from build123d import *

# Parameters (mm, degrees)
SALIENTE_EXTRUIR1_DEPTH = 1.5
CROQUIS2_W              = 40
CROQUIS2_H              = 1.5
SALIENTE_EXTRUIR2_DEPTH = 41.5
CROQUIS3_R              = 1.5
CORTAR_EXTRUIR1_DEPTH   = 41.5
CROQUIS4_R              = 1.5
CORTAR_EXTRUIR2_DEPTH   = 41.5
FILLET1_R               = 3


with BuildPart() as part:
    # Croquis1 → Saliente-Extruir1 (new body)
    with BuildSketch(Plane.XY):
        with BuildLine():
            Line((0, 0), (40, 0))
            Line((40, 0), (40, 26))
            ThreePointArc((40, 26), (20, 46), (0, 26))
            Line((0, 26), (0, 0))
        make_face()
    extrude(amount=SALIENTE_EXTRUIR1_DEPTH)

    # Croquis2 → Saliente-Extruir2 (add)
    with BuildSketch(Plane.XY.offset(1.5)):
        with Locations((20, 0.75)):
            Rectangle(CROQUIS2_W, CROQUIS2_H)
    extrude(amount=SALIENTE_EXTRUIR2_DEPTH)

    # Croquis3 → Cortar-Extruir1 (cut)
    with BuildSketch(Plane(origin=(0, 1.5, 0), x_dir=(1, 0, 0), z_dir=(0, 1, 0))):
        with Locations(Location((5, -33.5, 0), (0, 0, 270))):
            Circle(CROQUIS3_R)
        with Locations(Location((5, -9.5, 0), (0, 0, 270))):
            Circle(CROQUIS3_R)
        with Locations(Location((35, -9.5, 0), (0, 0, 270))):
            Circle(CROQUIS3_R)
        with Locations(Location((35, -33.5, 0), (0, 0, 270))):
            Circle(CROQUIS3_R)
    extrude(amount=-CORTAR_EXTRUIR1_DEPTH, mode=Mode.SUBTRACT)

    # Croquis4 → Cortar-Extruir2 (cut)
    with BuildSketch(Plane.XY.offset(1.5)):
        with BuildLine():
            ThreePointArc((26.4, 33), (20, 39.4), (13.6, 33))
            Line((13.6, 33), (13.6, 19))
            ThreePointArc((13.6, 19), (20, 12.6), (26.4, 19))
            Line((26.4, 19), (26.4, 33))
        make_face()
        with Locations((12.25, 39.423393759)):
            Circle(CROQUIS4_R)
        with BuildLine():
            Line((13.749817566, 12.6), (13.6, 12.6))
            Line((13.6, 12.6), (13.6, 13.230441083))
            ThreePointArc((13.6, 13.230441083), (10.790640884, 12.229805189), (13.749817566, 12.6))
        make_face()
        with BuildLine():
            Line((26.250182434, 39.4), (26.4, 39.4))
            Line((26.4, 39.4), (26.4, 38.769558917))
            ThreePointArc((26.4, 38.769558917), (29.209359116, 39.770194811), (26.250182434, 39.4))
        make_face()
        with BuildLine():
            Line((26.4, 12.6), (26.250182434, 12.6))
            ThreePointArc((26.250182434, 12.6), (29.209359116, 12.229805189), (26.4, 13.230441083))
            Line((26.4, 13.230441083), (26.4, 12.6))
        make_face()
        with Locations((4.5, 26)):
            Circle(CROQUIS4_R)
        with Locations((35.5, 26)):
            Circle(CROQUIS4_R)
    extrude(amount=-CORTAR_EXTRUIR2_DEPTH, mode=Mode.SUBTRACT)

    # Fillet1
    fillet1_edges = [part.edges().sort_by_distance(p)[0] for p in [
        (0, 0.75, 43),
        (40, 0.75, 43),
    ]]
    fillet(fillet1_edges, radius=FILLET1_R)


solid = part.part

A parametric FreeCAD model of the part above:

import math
import FreeCAD as App
import Part
import Sketcher

V = App.Vector


def edges_at(feature, points):
    """Names of the edges that pass closest to the given points."""
    edges = feature.Shape.Edges
    near = lambda p: min(range(len(edges)), key=lambda i: edges[i].distToShape(Part.Vertex(*p))[0])
    return sorted({f"Edge{near(p) + 1}" for p in points})


def add_polygon(sketch, points):
    """Adds a closed chain of lines whose ends are joined by coincident constraints."""
    first, n = sketch.GeometryCount, len(points)
    for a, b in zip(points, points[1:] + points[:1]):
        sketch.addGeometry(Part.LineSegment(App.Vector(*a, 0), App.Vector(*b, 0)), False)
    for i in range(n):
        sketch.addConstraint(Sketcher.Constraint("Coincident", first + i, 2, first + (i + 1) % n, 1))

doc = App.newDocument("Part")
body = doc.addObject("PartDesign::Body", "Body")

# Sketch on XY plane
sketch1 = body.newObject("Sketcher::SketchObject", "Sketch")
sketch1.AttachmentSupport = (doc.getObject("XY_Plane"), [""])
sketch1.MapMode = "FlatFace"
sketch1.addGeometry(Part.LineSegment(V(0, 0, 0), V(40, 0, 0)), False)
sketch1.addGeometry(Part.LineSegment(V(40, 0, 0), V(40, 26, 0)), False)
sketch1.addGeometry(Part.ArcOfCircle(Part.Circle(V(20, 26, 0), V(0, 0, 1), 20), math.radians(0), math.radians(180)), False)
sketch1.addGeometry(Part.LineSegment(V(0, 26, 0), V(0, 0, 0)), False)
sketch1.addConstraint(Sketcher.Constraint("Coincident", 0, 2, 1, 1))
sketch1.addConstraint(Sketcher.Constraint("Tangent", 1, 2, 2, 1))
sketch1.addConstraint(Sketcher.Constraint("Tangent", 2, 2, 3, 1))
sketch1.addConstraint(Sketcher.Constraint("Coincident", 3, 2, 0, 1))
sketch1.addConstraint(Sketcher.Constraint("Horizontal", 0))
sketch1.addConstraint(Sketcher.Constraint("Vertical", 1))
sketch1.addConstraint(Sketcher.Constraint("Vertical", 3))
sketch1.addConstraint(Sketcher.Constraint("Coincident", 3, 2, -1, 1))
sketch1.addConstraint(Sketcher.Constraint("Radius", 2, 20.0))
sketch1.addConstraint(Sketcher.Constraint("DistanceY", 1, 1, 1, 2, 26.0))
pad1 = body.newObject("PartDesign::Pad", "Pad")
pad1.Profile = sketch1
pad1.Length = 1.5

# Sketch on XY plane
sketch2 = body.newObject("Sketcher::SketchObject", "Sketch001")
sketch2.AttachmentSupport = (doc.getObject("XY_Plane"), [""])
sketch2.MapMode = "FlatFace"
sketch2.AttachmentOffset = App.Placement(V(0, 0, 1.5), App.Rotation())
add_polygon(sketch2, [(0, 1.5), (0, 0), (40, 0), (40, 1.5)])  # lines 0-3
sketch2.addConstraint(Sketcher.Constraint("Vertical", 0))
sketch2.addConstraint(Sketcher.Constraint("Horizontal", 1))
sketch2.addConstraint(Sketcher.Constraint("Vertical", 2))
sketch2.addConstraint(Sketcher.Constraint("Horizontal", 3))
sketch2.addConstraint(Sketcher.Constraint("Coincident", 0, 2, -1, 1))
sketch2.addConstraint(Sketcher.Constraint("DistanceX", 1, 1, 1, 2, 40.0))
sketch2.addConstraint(Sketcher.Constraint("DistanceY", 0, 2, 0, 1, 1.5))
pad2 = body.newObject("PartDesign::Pad", "Pad001")
pad2.Profile = sketch2
pad2.Length = 41.5

# Sketch on XZ plane
sketch3 = body.newObject("Sketcher::SketchObject", "Sketch002")
sketch3.AttachmentSupport = (doc.getObject("XZ_Plane"), [""])
sketch3.MapMode = "FlatFace"
sketch3.AttachmentOffset = App.Placement(V(0, 0, -1.5), App.Rotation())
sketch3.addGeometry(Part.Circle(V(5, 33.5, 0), V(0, 0, 1), 1.5), False)
sketch3.addGeometry(Part.Circle(V(5, 9.5, 0), V(0, 0, 1), 1.5), False)
sketch3.addGeometry(Part.Circle(V(35, 9.5, 0), V(0, 0, 1), 1.5), False)
sketch3.addGeometry(Part.Circle(V(35, 33.5, 0), V(0, 0, 1), 1.5), False)
sketch3.addConstraint(Sketcher.Constraint("Equal", 0, 1))
sketch3.addConstraint(Sketcher.Constraint("Equal", 1, 2))
sketch3.addConstraint(Sketcher.Constraint("Equal", 2, 3))
sketch3.addConstraint(Sketcher.Constraint("Horizontal", 1, 3, 2, 3))
sketch3.addConstraint(Sketcher.Constraint("Horizontal", 0, 3, 3, 3))
sketch3.addConstraint(Sketcher.Constraint("Vertical", 0, 3, 1, 3))
sketch3.addConstraint(Sketcher.Constraint("Vertical", 2, 3, 3, 3))
sketch3.addConstraint(Sketcher.Constraint("Diameter", 0, 3.0))
sketch3.addConstraint(Sketcher.Constraint("DistanceX", -1, 1, 0, 3, 5.0))
sketch3.addConstraint(Sketcher.Constraint("DistanceX", -1, 1, 2, 3, 35.0))
sketch3.addConstraint(Sketcher.Constraint("DistanceY", 1, 3, 0, 3, 24.0))
sketch3.addConstraint(Sketcher.Constraint("DistanceY", -1, 1, 0, 3, 33.5))
pocket1 = body.newObject("PartDesign::Pocket", "Pocket")
pocket1.Profile = sketch3
pocket1.Length = 41.5
pocket1.Reversed = True

# Sketch on XY plane
sketch4 = body.newObject("Sketcher::SketchObject", "Sketch003")
sketch4.AttachmentSupport = (doc.getObject("XY_Plane"), [""])
sketch4.MapMode = "FlatFace"
sketch4.AttachmentOffset = App.Placement(V(0, 0, 1.5), App.Rotation())
sketch4.addGeometry(Part.ArcOfCircle(Part.Circle(V(20, 33, 0), V(0, 0, 1), 6.4), math.radians(0), math.radians(180)), False)
sketch4.addGeometry(Part.LineSegment(V(13.6, 33, 0), V(13.6, 19, 0)), False)
sketch4.addGeometry(Part.ArcOfCircle(Part.Circle(V(20, 19, 0), V(0, 0, 1), 6.4), math.radians(180), math.radians(360)), False)
sketch4.addGeometry(Part.LineSegment(V(26.4, 19, 0), V(26.4, 33, 0)), False)
sketch4.addGeometry(Part.Circle(V(12.25, 39.42, 0), V(0, 0, 1), 1.5), False)
sketch4.addGeometry(Part.LineSegment(V(13.75, 12.6, 0), V(13.6, 12.6, 0)), False)
sketch4.addGeometry(Part.LineSegment(V(13.6, 12.6, 0), V(13.6, 13.23, 0)), False)
sketch4.addGeometry(Part.ArcOfCircle(Part.Circle(V(12.25, 12.58, 0), V(0, 0, 1), 1.5), math.radians(26), math.radians(361)), False)
sketch4.addGeometry(Part.LineSegment(V(26.25, 39.4, 0), V(26.4, 39.4, 0)), False)
sketch4.addGeometry(Part.LineSegment(V(26.4, 39.4, 0), V(26.4, 38.77, 0)), False)
sketch4.addGeometry(Part.ArcOfCircle(Part.Circle(V(27.75, 39.42, 0), V(0, 0, 1), 1.5), math.radians(-154), math.radians(181)), False)
sketch4.addGeometry(Part.LineSegment(V(26.4, 12.6, 0), V(26.25, 12.6, 0)), False)
sketch4.addGeometry(Part.ArcOfCircle(Part.Circle(V(27.75, 12.58, 0), V(0, 0, 1), 1.5), math.radians(179), math.radians(514)), False)
sketch4.addGeometry(Part.LineSegment(V(26.4, 13.23, 0), V(26.4, 12.6, 0)), False)
sketch4.addGeometry(Part.Circle(V(4.5, 26, 0), V(0, 0, 1), 1.5), False)
sketch4.addGeometry(Part.Circle(V(35.5, 26, 0), V(0, 0, 1), 1.5), False)
sketch4.addConstraint(Sketcher.Constraint("Tangent", 0, 2, 1, 1))
sketch4.addConstraint(Sketcher.Constraint("Tangent", 1, 2, 2, 1))
sketch4.addConstraint(Sketcher.Constraint("Tangent", 2, 2, 3, 1))
sketch4.addConstraint(Sketcher.Constraint("Tangent", 3, 2, 0, 1))
sketch4.addConstraint(Sketcher.Constraint("Coincident", 5, 2, 6, 1))
sketch4.addConstraint(Sketcher.Constraint("Coincident", 6, 2, 7, 1))
sketch4.addConstraint(Sketcher.Constraint("Coincident", 7, 2, 5, 1))
sketch4.addConstraint(Sketcher.Constraint("Coincident", 8, 2, 9, 1))
sketch4.addConstraint(Sketcher.Constraint("Coincident", 9, 2, 10, 1))
sketch4.addConstraint(Sketcher.Constraint("Coincident", 10, 2, 8, 1))
sketch4.addConstraint(Sketcher.Constraint("Coincident", 11, 2, 12, 1))
sketch4.addConstraint(Sketcher.Constraint("Coincident", 12, 2, 13, 1))
sketch4.addConstraint(Sketcher.Constraint("Coincident", 13, 2, 11, 1))
sketch4.addConstraint(Sketcher.Constraint("Vertical", 1))
sketch4.addConstraint(Sketcher.Constraint("Vertical", 3))
sketch4.addConstraint(Sketcher.Constraint("Horizontal", 5))
sketch4.addConstraint(Sketcher.Constraint("Vertical", 6))
sketch4.addConstraint(Sketcher.Constraint("Horizontal", 8))
sketch4.addConstraint(Sketcher.Constraint("Vertical", 9))
sketch4.addConstraint(Sketcher.Constraint("Horizontal", 11))
sketch4.addConstraint(Sketcher.Constraint("Vertical", 13))
sketch4.addConstraint(Sketcher.Constraint("Equal", 4, 7))
sketch4.addConstraint(Sketcher.Constraint("Equal", 7, 10))
sketch4.addConstraint(Sketcher.Constraint("Equal", 10, 12))
sketch4.addConstraint(Sketcher.Constraint("Equal", 12, 14))
sketch4.addConstraint(Sketcher.Constraint("Equal", 14, 15))
sketch4.addConstraint(Sketcher.Constraint("Horizontal", 4, 3, 10, 3))
sketch4.addConstraint(Sketcher.Constraint("Horizontal", 7, 3, 12, 3))
sketch4.addConstraint(Sketcher.Constraint("Horizontal", 14, 3, 15, 3))
sketch4.addConstraint(Sketcher.Constraint("Horizontal", 7, 2, 11, 2))
sketch4.addConstraint(Sketcher.Constraint("Horizontal", 6, 2, 12, 2))
sketch4.addConstraint(Sketcher.Constraint("Vertical", 4, 3, 7, 3))
sketch4.addConstraint(Sketcher.Constraint("Vertical", 10, 3, 12, 3))
sketch4.addConstraint(Sketcher.Constraint("Vertical", 1, 2, 5, 2))
sketch4.addConstraint(Sketcher.Constraint("Vertical", 3, 2, 8, 2))
sketch4.addConstraint(Sketcher.Constraint("Vertical", 10, 2, 11, 2))
sketch4.addConstraint(Sketcher.Constraint("Vertical", 9, 2, 12, 2))
sketch4.addConstraint(Sketcher.Constraint("Diameter", 4, 3.0))
sketch4.addConstraint(Sketcher.Constraint("Radius", 0, 6.4))
sketch4.addConstraint(Sketcher.Constraint("DistanceY", 1, 2, 1, 1, 14.0))
sketch4.addConstraint(Sketcher.Constraint("DistanceX", -1, 1, 0, 3, 20.0))
sketch4.addConstraint(Sketcher.Constraint("DistanceY", -1, 1, 0, 3, 33.0))
sketch4.addConstraint(Sketcher.Constraint("DistanceY", -1, 1, 14, 3, 26.0))
sketch4.addConstraint(Sketcher.Constraint("DistanceX", -1, 1, 14, 3, 4.5))
sketch4.addConstraint(Sketcher.Constraint("DistanceX", -1, 1, 15, 3, 35.5))
sketch4.addConstraint(Sketcher.Constraint("DistanceY", -1, 1, 5, 2, 12.6))
sketch4.addConstraint(Sketcher.Constraint("DistanceY", -1, 1, 8, 2, 39.4))
sketch4.addConstraint(Sketcher.Constraint("DistanceX", 4, 3, 10, 3, 15.5))
sketch4.addConstraint(Sketcher.Constraint("DistanceY", 6, 1, 6, 2, 0.630441))
pocket2 = body.newObject("PartDesign::Pocket", "Pocket001")
pocket2.Profile = sketch4
pocket2.Length = 41.5
doc.recompute()

fillet = body.newObject("PartDesign::Fillet", "Fillet")
fillet.Base = (pocket2, edges_at(pocket2, [(0, 0.75, 43), (40, 0.75, 43)]))
fillet.Radius = 3

doc.recompute()
